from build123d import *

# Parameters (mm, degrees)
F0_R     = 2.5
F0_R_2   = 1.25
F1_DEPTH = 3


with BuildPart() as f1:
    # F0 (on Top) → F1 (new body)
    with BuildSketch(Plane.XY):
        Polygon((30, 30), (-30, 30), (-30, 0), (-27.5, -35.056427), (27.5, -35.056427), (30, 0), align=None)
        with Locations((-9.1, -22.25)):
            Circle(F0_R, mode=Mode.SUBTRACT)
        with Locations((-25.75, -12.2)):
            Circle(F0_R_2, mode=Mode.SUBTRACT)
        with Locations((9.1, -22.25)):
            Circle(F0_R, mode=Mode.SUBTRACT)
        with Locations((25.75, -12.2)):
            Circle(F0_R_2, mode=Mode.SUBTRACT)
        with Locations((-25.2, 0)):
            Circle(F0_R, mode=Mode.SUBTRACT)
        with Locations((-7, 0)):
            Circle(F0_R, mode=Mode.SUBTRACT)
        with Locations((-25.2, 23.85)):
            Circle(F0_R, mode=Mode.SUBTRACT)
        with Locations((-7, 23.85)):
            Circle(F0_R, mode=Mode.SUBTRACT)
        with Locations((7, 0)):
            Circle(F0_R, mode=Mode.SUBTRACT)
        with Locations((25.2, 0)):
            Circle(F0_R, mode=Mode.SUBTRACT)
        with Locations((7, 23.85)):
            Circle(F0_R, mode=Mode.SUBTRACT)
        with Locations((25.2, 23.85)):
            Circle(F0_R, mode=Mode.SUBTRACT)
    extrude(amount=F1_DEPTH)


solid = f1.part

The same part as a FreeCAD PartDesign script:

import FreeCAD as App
import Part
import Sketcher
from FreeCAD import Vector


def add_polygon(sketch, points):
    """Adds a closed chain of lines whose ends are joined by coincident constraints."""
    first, n = sketch.GeometryCount, len(points)
    for a, b in zip(points, points[1:] + points[:1]):
        sketch.addGeometry(Part.LineSegment(App.Vector(*a, 0), App.Vector(*b, 0)), False)
    for i in range(n):
        sketch.addConstraint(Sketcher.Constraint("Coincident", first + i, 2, first + (i + 1) % n, 1))

doc = App.newDocument("Part")
params = doc.addObject("Spreadsheet::Sheet", "Params")
for row, (alias, value) in enumerate([
    ("sketch1_diameter", "5 mm"),
    ("sketch1_diameter2", "2.5 mm"),
    ("sketch1_width", "60 mm"),
    ("sketch1_width2", "55 mm"),
    ("sketch1_height", "30 mm"),
    ("pad1_length", "3 mm"),
], start=1):
    params.set(f"A{row}", alias)
    params.set(f"B{row}", "=" + value)
    params.setAlias(f"B{row}", alias)

body = doc.addObject("PartDesign::Body", "Body")

# Sketch on XY plane
sketch1 = body.newObject("Sketcher::SketchObject", "Sketch")
sketch1.AttachmentSupport = (doc.getObject("XY_Plane"), [""])
sketch1.MapMode = "FlatFace"
add_polygon(sketch1, [(30, 30), (-30, 30), (-30, 0), (-27.5, -35.056427), (27.5, -35.056427), (30, 0)])  # lines 0-5
sketch1.addGeometry(Part.Circle(Vector(-25.75, -12.2, 0), Vector(0, 0, 1), 1.25), False)  # 6
sketch1.addGeometry(Part.Circle(Vector(-9.1, -22.25, 0), Vector(0, 0, 1), 2.5), False)  # 7
sketch1.addGeometry(Part.Circle(Vector(-25.2, 0, 0), Vector(0, 0, 1), 2.5), False)  # 8
sketch1.addGeometry(Part.Circle(Vector(-7, 0, 0), Vector(0, 0, 1), 2.5), False)  # 9
sketch1.addGeometry(Part.Circle(Vector(9.1, -22.25, 0), Vector(0, 0, 1), 2.5), False)  # 10
sketch1.addGeometry(Part.Circle(Vector(25.75, -12.2, 0), Vector(0, 0, 1), 1.25), False)  # 11
sketch1.addGeometry(Part.Circle(Vector(7, 0, 0), Vector(0, 0, 1), 2.5), False)  # 12
sketch1.addGeometry(Part.Circle(Vector(25.2, 0, 0), Vector(0, 0, 1), 2.5), False)  # 13
sketch1.addGeometry(Part.Circle(Vector(-25.2, 23.85, 0), Vector(0, 0, 1), 2.5), False)  # 14
sketch1.addGeometry(Part.Circle(Vector(-7, 23.85, 0), Vector(0, 0, 1), 2.5), False)  # 15
sketch1.addGeometry(Part.Circle(Vector(7, 23.85, 0), Vector(0, 0, 1), 2.5), False)  # 16
sketch1.addGeometry(Part.Circle(Vector(25.2, 23.85, 0), Vector(0, 0, 1), 2.5), False)  # 17
sketch1.addConstraint([
    Sketcher.Constraint("Horizontal", 0),
    Sketcher.Constraint("Vertical", 1),
    Sketcher.Constraint("Horizontal", 3),
    Sketcher.Constraint("Vertical", 5),
    Sketcher.Constraint("Equal", 7, 8),
    Sketcher.Constraint("Equal", 8, 9),
    Sketcher.Constraint("Equal", 9, 10),
    Sketcher.Constraint("Equal", 6, 11),
    Sketcher.Constraint("Equal", 10, 12),
    Sketcher.Constraint("Equal", 12, 13),
    Sketcher.Constraint("Equal", 13, 14),
    Sketcher.Constraint("Equal", 14, 15),
    Sketcher.Constraint("Equal", 15, 16),
    Sketcher.Constraint("Equal", 16, 17),
    Sketcher.Constraint("Symmetric", 9, 3, 12, 3, -1, 1),
    Sketcher.Constraint("Symmetric", 8, 3, 13, 3, -1, 1),
    Sketcher.Constraint("Symmetric", 1, 2, 4, 2, -1, 1),
    Sketcher.Constraint("Symmetric", 7, 3, 10, 3, -2),
    Sketcher.Constraint("Symmetric", 6, 3, 11, 3, -2),
    Sketcher.Constraint("Symmetric", 15, 3, 16, 3, -2),
    Sketcher.Constraint("Symmetric", 14, 3, 17, 3, -2),
    Sketcher.Constraint("PointOnObject", 8, 3, -1),
    Sketcher.Constraint("PointOnObject", 9, 3, -1),
    Sketcher.Constraint("PointOnObject", 1, 2, -1),
    Sketcher.Constraint("Horizontal", 14, 3, 15, 3),
    Sketcher.Constraint("Vertical", 8, 3, 14, 3),
    Sketcher.Constraint("Vertical", 9, 3, 15, 3),
    Sketcher.Constraint("Equal", 2, 4),
    Sketcher.Constraint("Diameter", 7, 5.0),
    Sketcher.Constraint("Diameter", 6, 2.5),
    Sketcher.Constraint("DistanceX", 0, 2, 0, 1, 60.0),
    Sketcher.Constraint("DistanceX", 3, 1, 3, 2, 55.0),
    Sketcher.Constraint("DistanceY", 1, 2, 1, 1, 30.0),
    Sketcher.Constraint("DistanceX", 9, 3, -1, 1, 7.0),
    Sketcher.Constraint("DistanceY", 6, 3, -1, 1, 12.2),
    Sketcher.Constraint("DistanceX", 7, 3, -1, 1, 9.1),
    Sketcher.Constraint("DistanceX", 8, 3, -1, 1, 25.2),
    Sketcher.Constraint("DistanceX", 6, 3, 11, 3, 51.5),
    Sketcher.Constraint("DistanceY", 7, 3, 14, 3, 46.1),
    Sketcher.Constraint("DistanceY", 7, 3, -1, 1, 22.25),
    Sketcher.Constraint("Distance", 2, 35.145456),
])
sketch1.setExpression("Constraints[34]", "Params.sketch1_diameter")
sketch1.setExpression("Constraints[35]", "Params.sketch1_diameter2")
sketch1.setExpression("Constraints[36]", "Params.sketch1_width")
sketch1.setExpression("Constraints[37]", "Params.sketch1_width2")
sketch1.setExpression("Constraints[38]", "Params.sketch1_height")
pad1 = body.newObject("PartDesign::Pad", "Pad")
pad1.Profile = sketch1
pad1.setExpression("Length", "Params.pad1_length")

doc.recompute()
